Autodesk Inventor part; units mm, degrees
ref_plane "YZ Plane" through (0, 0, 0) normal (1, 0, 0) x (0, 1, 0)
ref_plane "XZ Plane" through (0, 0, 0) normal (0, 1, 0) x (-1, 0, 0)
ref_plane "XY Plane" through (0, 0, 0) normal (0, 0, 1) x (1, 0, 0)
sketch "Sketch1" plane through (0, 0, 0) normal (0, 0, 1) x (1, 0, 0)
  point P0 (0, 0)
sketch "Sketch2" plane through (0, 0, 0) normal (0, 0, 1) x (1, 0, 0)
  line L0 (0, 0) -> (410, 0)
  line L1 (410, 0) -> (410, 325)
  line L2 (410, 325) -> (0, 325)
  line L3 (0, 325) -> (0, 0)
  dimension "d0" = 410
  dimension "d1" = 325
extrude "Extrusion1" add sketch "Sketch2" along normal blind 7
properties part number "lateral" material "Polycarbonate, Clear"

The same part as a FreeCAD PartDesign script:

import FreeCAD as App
import Part
import Sketcher
from FreeCAD import Vector
Q = App.Units.Quantity


def add_polygon(sketch, points):
    """Adds a closed chain of lines whose ends are joined by coincident constraints."""
    first, n = sketch.GeometryCount, len(points)
    for a, b in zip(points, points[1:] + points[:1]):
        sketch.addGeometry(Part.LineSegment(App.Vector(*a, 0), App.Vector(*b, 0)), False)
    for i in range(n):
        sketch.addConstraint(Sketcher.Constraint("Coincident", first + i, 2, first + (i + 1) % n, 1))

doc = App.newDocument("Part")
body = doc.addObject("PartDesign::Body", "Body")

sketch1 = body.newObject("Sketcher::SketchObject", "Sketch")
sketch1.AttachmentSupport = (doc.getObject("XY_Plane"), [""])
sketch1.MapMode = "FlatFace"
add_polygon(sketch1, [(0, 325), (0, 0), (410, 0), (410, 325)])
sketch1.addConstraint([
    Sketcher.Constraint("Vertical", 0),
    Sketcher.Constraint("Horizontal", 1),
    Sketcher.Constraint("Vertical", 2),
    Sketcher.Constraint("Horizontal", 3),
    Sketcher.Constraint("Coincident", 0, 2, -1, 1),
    Sketcher.Constraint("DistanceX", 1, 1, 1, 2, Q("410 mm")),
    Sketcher.Constraint("DistanceY", 0, 2, 0, 1, Q("325 mm")),
])
pad1 = body.newObject("PartDesign::Pad", "Pad")
pad1.Profile = sketch1
pad1.Length = 7

doc.recompute()
